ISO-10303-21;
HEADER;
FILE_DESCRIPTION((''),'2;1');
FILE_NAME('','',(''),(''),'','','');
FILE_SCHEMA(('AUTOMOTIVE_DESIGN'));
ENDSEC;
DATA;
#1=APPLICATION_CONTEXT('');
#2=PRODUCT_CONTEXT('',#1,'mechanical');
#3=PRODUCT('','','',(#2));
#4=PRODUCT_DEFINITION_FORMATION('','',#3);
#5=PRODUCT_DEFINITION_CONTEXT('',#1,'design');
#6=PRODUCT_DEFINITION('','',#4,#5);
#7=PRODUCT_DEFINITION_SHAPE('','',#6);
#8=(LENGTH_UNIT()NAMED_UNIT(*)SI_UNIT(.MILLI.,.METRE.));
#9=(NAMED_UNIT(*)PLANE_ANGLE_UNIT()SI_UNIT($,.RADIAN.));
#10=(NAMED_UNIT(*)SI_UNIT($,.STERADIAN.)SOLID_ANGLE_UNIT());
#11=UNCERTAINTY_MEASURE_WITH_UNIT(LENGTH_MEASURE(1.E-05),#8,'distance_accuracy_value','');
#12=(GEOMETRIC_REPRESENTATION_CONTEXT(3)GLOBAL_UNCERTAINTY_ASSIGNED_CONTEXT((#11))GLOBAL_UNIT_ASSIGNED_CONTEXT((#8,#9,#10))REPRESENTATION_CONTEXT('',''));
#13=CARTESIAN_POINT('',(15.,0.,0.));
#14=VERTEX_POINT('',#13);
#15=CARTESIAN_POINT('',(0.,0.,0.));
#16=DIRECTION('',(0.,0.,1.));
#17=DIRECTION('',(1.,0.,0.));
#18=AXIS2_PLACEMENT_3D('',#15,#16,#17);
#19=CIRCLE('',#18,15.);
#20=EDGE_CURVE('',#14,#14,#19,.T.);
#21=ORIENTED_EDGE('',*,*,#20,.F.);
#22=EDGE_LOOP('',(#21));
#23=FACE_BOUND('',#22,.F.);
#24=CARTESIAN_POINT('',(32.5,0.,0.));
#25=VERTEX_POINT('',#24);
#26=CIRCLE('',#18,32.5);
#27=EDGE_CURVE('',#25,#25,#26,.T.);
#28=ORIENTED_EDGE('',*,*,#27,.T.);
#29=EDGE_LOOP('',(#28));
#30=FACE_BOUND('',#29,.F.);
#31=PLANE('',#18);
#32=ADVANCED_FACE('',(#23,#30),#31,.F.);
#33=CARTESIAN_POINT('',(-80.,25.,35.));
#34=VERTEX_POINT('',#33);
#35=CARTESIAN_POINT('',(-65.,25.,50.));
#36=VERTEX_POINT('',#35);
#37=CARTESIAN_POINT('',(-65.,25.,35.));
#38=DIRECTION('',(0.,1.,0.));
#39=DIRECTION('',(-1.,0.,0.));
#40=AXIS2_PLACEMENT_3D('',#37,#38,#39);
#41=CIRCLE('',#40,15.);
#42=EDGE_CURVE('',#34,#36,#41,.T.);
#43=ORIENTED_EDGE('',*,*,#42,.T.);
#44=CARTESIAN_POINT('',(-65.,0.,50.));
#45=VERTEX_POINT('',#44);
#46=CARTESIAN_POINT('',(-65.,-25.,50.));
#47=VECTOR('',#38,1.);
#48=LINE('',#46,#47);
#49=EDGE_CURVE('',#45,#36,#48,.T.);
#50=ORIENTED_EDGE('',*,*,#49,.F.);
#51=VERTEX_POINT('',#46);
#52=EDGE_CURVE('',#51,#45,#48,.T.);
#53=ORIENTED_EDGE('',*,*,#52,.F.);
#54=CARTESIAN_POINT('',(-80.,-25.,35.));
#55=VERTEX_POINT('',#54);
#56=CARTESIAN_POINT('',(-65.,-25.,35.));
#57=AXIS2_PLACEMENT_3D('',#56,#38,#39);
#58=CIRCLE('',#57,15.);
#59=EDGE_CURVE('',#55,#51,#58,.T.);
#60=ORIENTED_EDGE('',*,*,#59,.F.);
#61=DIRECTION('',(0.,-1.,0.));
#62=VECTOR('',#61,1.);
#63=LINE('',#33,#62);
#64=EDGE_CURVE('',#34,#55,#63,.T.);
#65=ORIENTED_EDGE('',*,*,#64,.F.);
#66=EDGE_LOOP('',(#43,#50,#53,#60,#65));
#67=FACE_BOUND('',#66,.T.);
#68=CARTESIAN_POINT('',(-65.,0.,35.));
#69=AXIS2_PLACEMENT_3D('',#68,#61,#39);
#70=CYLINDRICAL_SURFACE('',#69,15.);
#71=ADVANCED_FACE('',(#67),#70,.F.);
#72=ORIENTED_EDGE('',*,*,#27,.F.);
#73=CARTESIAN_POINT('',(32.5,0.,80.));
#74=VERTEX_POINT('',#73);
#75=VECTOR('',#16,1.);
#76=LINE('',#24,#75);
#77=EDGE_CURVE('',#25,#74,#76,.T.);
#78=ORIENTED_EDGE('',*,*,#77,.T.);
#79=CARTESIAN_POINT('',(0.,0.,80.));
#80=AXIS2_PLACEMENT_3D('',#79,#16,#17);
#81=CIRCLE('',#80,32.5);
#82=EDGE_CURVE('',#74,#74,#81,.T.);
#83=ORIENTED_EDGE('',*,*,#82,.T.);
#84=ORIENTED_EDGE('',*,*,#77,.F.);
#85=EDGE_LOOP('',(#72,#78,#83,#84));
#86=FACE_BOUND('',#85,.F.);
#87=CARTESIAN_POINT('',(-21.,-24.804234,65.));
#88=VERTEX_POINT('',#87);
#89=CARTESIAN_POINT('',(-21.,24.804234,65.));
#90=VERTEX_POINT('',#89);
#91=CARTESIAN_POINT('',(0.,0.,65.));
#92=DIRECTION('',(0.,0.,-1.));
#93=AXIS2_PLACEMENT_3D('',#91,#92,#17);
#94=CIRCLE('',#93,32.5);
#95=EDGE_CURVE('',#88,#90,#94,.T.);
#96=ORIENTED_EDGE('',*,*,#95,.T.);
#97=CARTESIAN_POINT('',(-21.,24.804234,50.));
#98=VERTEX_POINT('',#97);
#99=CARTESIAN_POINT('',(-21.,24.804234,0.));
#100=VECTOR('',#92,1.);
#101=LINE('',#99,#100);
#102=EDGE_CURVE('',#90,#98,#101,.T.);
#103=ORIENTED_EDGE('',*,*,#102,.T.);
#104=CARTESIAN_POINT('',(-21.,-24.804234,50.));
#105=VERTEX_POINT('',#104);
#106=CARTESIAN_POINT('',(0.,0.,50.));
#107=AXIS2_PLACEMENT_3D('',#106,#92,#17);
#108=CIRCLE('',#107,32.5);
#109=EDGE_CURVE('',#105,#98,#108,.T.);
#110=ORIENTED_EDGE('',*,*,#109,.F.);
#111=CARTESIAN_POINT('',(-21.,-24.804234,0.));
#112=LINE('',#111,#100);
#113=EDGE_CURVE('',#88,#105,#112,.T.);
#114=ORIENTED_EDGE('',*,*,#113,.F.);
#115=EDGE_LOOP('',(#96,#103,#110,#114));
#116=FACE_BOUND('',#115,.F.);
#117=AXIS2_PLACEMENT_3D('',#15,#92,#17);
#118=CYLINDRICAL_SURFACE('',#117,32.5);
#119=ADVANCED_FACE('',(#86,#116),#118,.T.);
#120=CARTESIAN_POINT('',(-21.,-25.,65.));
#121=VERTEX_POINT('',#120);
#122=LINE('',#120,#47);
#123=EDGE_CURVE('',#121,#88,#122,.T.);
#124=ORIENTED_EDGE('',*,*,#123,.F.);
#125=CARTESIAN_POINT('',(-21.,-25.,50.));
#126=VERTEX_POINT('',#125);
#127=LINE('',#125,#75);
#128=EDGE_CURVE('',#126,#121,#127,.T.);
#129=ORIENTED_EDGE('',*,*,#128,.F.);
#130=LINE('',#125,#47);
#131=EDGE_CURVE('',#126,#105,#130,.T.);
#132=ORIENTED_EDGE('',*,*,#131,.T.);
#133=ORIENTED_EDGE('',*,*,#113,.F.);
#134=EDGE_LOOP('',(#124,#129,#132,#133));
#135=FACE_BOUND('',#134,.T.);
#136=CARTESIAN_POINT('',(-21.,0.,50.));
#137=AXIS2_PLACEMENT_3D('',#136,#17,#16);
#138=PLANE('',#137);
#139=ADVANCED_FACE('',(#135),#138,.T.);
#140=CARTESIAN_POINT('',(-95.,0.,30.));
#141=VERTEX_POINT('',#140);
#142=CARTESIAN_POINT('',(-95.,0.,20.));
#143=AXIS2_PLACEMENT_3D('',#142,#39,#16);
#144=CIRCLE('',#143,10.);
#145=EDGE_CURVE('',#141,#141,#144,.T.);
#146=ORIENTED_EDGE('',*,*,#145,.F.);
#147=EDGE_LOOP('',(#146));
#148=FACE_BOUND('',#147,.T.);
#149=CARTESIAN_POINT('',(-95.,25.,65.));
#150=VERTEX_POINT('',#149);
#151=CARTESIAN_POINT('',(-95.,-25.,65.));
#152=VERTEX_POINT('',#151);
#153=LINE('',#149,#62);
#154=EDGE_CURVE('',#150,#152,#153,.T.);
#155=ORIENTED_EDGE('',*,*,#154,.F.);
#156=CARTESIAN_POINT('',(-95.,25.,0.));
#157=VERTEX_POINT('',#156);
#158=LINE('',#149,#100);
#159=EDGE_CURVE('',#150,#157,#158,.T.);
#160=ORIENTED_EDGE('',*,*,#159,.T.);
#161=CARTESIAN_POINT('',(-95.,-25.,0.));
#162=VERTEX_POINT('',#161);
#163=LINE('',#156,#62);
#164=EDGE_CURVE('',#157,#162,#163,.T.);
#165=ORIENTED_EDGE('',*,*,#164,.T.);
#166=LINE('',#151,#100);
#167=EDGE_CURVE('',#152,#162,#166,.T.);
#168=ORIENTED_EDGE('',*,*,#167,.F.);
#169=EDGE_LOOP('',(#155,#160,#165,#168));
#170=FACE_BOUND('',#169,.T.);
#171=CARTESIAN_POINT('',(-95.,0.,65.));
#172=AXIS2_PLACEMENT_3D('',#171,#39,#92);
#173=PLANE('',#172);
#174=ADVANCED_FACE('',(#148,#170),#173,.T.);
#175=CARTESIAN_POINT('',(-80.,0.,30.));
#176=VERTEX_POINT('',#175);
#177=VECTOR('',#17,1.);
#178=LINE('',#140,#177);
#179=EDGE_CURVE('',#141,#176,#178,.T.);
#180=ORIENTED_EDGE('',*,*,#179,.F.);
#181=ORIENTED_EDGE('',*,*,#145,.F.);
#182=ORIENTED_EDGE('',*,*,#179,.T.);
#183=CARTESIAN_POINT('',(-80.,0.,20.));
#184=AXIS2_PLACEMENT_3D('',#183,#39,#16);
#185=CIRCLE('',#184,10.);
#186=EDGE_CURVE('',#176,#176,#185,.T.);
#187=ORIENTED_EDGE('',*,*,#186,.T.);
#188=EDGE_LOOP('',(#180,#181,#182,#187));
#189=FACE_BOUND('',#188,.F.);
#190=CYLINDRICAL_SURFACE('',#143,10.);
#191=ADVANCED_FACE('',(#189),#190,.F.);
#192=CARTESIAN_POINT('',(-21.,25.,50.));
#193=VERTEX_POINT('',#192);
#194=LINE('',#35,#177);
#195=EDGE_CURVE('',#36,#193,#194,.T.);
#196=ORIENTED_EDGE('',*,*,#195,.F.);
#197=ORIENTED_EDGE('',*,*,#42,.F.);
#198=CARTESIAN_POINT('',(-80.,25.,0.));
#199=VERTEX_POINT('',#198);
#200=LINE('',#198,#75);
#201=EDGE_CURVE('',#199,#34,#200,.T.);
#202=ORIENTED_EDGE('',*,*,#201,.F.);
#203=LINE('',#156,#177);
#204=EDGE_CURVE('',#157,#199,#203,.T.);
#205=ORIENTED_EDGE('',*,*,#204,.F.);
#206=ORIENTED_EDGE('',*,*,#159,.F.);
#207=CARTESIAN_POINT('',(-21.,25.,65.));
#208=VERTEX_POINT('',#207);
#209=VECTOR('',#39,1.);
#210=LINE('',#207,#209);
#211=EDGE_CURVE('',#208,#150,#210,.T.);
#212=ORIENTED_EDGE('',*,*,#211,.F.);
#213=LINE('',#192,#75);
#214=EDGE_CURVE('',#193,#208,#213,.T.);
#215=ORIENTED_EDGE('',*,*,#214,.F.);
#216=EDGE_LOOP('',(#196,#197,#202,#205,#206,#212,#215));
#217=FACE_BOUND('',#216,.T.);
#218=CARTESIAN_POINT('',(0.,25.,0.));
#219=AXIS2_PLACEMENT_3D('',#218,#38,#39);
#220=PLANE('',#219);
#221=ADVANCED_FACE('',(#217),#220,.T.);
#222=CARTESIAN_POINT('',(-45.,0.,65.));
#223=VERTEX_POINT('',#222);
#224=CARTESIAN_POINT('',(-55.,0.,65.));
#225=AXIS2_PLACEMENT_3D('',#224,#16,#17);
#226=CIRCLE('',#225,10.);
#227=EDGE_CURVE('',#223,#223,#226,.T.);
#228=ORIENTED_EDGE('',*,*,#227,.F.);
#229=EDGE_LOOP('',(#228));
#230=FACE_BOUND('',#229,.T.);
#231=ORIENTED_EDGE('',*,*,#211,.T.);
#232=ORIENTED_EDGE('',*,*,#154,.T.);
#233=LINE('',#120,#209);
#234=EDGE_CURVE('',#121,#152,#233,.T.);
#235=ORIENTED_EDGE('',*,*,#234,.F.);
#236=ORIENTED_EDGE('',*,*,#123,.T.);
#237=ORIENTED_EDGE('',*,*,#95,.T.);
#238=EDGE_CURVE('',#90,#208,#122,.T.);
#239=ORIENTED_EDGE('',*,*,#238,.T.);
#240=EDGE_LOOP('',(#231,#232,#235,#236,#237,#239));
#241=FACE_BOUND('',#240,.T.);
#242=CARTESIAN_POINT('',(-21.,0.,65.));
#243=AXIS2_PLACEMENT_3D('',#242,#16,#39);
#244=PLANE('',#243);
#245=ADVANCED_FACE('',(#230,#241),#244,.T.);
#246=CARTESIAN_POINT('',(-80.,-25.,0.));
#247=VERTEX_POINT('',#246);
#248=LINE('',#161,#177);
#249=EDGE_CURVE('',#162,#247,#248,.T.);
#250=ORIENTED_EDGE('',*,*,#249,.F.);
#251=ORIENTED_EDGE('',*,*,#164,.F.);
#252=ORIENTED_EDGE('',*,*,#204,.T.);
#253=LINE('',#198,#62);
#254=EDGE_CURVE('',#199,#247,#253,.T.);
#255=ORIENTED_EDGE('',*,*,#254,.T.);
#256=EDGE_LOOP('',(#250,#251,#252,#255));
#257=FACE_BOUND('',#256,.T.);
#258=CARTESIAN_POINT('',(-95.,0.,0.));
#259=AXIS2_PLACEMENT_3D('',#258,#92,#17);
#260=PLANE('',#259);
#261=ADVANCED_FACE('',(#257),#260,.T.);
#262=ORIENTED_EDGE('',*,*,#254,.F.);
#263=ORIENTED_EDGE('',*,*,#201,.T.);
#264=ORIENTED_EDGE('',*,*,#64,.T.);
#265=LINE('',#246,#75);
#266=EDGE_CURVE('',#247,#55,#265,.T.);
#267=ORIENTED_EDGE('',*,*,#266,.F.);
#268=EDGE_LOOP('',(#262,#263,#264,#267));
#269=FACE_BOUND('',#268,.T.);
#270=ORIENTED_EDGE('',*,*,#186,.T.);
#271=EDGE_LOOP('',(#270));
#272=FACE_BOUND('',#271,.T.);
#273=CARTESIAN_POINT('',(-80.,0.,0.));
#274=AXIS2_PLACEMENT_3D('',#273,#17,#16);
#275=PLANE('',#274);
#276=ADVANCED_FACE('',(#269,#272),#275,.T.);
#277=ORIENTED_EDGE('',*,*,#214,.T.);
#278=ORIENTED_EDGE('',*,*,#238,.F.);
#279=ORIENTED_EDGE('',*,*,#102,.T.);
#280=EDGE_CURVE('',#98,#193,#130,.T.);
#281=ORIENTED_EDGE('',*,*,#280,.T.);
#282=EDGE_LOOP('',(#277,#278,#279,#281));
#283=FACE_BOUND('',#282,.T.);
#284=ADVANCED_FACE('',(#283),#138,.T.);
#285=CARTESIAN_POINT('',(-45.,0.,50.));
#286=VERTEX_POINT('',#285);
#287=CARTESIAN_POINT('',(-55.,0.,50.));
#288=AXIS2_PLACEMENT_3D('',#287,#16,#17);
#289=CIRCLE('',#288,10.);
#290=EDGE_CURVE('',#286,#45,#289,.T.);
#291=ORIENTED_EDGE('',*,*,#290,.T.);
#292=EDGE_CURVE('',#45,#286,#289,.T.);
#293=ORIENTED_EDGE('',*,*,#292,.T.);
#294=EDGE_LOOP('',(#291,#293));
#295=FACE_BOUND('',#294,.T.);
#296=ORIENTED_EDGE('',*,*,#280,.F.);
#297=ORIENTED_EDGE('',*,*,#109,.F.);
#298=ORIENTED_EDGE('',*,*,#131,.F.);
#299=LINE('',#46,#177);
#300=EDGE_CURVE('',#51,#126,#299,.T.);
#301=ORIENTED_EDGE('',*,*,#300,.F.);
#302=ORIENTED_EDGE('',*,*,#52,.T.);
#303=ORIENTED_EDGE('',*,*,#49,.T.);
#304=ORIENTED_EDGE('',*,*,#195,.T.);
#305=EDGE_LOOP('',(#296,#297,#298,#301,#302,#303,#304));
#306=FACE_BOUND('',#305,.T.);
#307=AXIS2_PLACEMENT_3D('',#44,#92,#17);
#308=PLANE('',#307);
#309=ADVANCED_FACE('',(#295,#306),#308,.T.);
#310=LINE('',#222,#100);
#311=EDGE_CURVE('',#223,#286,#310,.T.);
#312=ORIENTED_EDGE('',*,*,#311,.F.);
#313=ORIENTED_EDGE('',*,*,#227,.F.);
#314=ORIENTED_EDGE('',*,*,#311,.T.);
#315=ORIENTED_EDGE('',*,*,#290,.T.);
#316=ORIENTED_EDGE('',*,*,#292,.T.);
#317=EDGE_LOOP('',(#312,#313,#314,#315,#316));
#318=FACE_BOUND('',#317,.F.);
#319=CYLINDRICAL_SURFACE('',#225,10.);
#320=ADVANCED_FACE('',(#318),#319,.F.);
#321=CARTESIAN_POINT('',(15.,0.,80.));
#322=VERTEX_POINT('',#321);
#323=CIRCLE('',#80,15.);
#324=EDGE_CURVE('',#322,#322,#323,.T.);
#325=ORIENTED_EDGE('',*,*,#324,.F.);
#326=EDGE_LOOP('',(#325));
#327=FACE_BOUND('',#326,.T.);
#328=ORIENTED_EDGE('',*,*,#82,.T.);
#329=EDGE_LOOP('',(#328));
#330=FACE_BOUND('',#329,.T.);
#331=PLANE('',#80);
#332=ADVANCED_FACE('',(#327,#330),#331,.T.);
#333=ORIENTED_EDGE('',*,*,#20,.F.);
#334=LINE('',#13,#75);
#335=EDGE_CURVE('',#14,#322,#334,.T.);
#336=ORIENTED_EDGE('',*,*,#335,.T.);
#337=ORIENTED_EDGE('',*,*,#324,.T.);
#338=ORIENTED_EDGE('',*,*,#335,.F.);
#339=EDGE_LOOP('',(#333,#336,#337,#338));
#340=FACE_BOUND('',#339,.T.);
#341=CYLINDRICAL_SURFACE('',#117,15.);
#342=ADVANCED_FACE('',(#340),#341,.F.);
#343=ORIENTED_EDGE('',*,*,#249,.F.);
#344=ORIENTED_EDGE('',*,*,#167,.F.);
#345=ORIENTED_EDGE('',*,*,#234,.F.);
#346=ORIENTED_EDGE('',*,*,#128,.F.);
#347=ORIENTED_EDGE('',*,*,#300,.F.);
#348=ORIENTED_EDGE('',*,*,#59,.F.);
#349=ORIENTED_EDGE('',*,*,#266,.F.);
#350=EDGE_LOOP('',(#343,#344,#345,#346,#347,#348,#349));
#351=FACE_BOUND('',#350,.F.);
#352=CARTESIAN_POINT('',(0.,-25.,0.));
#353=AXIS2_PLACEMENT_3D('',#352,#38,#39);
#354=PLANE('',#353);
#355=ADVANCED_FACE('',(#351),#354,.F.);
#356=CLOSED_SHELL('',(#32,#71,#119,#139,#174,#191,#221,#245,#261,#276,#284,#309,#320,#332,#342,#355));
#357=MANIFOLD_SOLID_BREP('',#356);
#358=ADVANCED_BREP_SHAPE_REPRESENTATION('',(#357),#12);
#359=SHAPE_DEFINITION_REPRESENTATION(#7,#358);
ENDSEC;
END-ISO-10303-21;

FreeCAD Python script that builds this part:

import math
import FreeCAD as App
import Part
import Sketcher

V = App.Vector
Q = App.Units.Quantity

doc = App.newDocument("Part")
body = doc.addObject("PartDesign::Body", "Body")

# Sketch on XY plane
sketch1 = doc.addObject("Sketcher::SketchObject", "Sketch")
body.addObject(sketch1)
sketch1.AttachmentSupport = (doc.XY_Plane, [""])
sketch1.MapMode = "FlatFace"
sketch1.addGeometry([
    Part.Circle(V(0, 0, 0), V(0, 0, 1), 32),
    Part.Circle(V(0, 0, 0), V(0, 0, 1), 15),
], False)
sketch1.addConstraint([
    Sketcher.Constraint("Coincident", 0, 3, -1, 1),
    Sketcher.Constraint("Coincident", 1, 3, -1, 1),
    Sketcher.Constraint("Diameter", 0, Q("65 mm")),
    Sketcher.Constraint("Diameter", 1, Q("30 mm")),
])
pad1 = doc.addObject("PartDesign::Pad", "Pad")
body.addObject(pad1)
pad1.Profile = sketch1
pad1.Length = 80

# Sketch on XZ plane
sketch2 = doc.addObject("Sketcher::SketchObject", "Sketch001")
body.addObject(sketch2)
sketch2.AttachmentSupport = (doc.XZ_Plane, [""])
sketch2.MapMode = "FlatFace"
sketch2.addGeometry([
    Part.LineSegment(V(-95, 65, 0), V(-21, 65, 0)),  # 0
    Part.LineSegment(V(-21, 65, 0), V(-21, 50, 0)),  # 1
    Part.LineSegment(V(-21, 50, 0), V(-65, 50, 0)),  # 2
    Part.ArcOfCircle(Part.Circle(V(-65, 35, 0), V(0, 0, 1), 15), math.radians(90), math.radians(180)),  # 3
    Part.LineSegment(V(-80, 35, 0), V(-80, 0, 0)),  # 4
    Part.LineSegment(V(-80, 0, 0), V(-95, 0, 0)),  # 5
    Part.LineSegment(V(-95, 0, 0), V(-95, 65, 0)),  # 6
], False)
sketch2.addConstraint([
    Sketcher.Constraint("Coincident", 0, 2, 1, 1),
    Sketcher.Constraint("Coincident", 1, 2, 2, 1),
    Sketcher.Constraint("Tangent", 2, 2, 3, 1),
    Sketcher.Constraint("Tangent", 3, 2, 4, 1),
    Sketcher.Constraint("Coincident", 4, 2, 5, 1),
    Sketcher.Constraint("Coincident", 5, 2, 6, 1),
    Sketcher.Constraint("Coincident", 6, 2, 0, 1),
    Sketcher.Constraint("Horizontal", 0),
    Sketcher.Constraint("Vertical", 1),
    Sketcher.Constraint("Horizontal", 2),
    Sketcher.Constraint("Vertical", 4),
    Sketcher.Constraint("Horizontal", 5),
    Sketcher.Constraint("Vertical", 6),
    Sketcher.Constraint("PointOnObject", 4, 2, -1),
    Sketcher.Constraint("Equal", 5, 1),
    Sketcher.Constraint("Radius", 3, Q("15 mm")),
    Sketcher.Constraint("DistanceX", 0, 1, 0, 2, Q("74 mm")),
    Sketcher.Constraint("DistanceX", 2, 2, 2, 1, Q("44 mm")),
    Sketcher.Constraint("DistanceY", 4, 2, 4, 1, Q("35 mm")),
    Sketcher.Constraint("DistanceX", 3, 3, -1, 1, Q("65 mm")),
])
pad2 = doc.addObject("PartDesign::Pad", "Pad001")
body.addObject(pad2)
pad2.Profile = sketch2
pad2.Length = 50
pad2.Midplane = True

# Sketch on YZ plane
sketch3 = doc.addObject("Sketcher::SketchObject", "Sketch002")
body.addObject(sketch3)
sketch3.AttachmentSupport = (doc.YZ_Plane, [""])
sketch3.MapMode = "FlatFace"
sketch3.AttachmentOffset = App.Placement(V(0, 0, -95), App.Rotation())
sketch3.addGeometry(Part.Circle(V(0, 20, 0), V(0, 0, 1), 10), False)
sketch3.addConstraint([
    Sketcher.Constraint("PointOnObject", 0, 3, -2),
    Sketcher.Constraint("Diameter", 0, Q("20 mm")),
    Sketcher.Constraint("DistanceY", -1, 1, 0, 3, Q("20 mm")),
])
pocket1 = doc.addObject("PartDesign::Pocket", "Pocket")
body.addObject(pocket1)
pocket1.Profile = sketch3
pocket1.Length = 50
pocket1.Reversed = True

# Sketch on XY plane
sketch4 = doc.addObject("Sketcher::SketchObject", "Sketch003")
body.addObject(sketch4)
sketch4.AttachmentSupport = (doc.XY_Plane, [""])
sketch4.MapMode = "FlatFace"
sketch4.AttachmentOffset = App.Placement(V(0, 0, 65), App.Rotation())
sketch4.addGeometry(Part.Circle(V(-55, 0, 0), V(0, 0, 1), 10), False)
sketch4.addConstraint([
    Sketcher.Constraint("PointOnObject", 0, 3, -1),
    Sketcher.Constraint("Diameter", 0, Q("20 mm")),
    Sketcher.Constraint("DistanceX", 0, 3, -1, 1, Q("55 mm")),
])
pocket2 = doc.addObject("PartDesign::Pocket", "Pocket001")
body.addObject(pocket2)
pocket2.Profile = sketch4
pocket2.Length = 50

doc.recompute()
